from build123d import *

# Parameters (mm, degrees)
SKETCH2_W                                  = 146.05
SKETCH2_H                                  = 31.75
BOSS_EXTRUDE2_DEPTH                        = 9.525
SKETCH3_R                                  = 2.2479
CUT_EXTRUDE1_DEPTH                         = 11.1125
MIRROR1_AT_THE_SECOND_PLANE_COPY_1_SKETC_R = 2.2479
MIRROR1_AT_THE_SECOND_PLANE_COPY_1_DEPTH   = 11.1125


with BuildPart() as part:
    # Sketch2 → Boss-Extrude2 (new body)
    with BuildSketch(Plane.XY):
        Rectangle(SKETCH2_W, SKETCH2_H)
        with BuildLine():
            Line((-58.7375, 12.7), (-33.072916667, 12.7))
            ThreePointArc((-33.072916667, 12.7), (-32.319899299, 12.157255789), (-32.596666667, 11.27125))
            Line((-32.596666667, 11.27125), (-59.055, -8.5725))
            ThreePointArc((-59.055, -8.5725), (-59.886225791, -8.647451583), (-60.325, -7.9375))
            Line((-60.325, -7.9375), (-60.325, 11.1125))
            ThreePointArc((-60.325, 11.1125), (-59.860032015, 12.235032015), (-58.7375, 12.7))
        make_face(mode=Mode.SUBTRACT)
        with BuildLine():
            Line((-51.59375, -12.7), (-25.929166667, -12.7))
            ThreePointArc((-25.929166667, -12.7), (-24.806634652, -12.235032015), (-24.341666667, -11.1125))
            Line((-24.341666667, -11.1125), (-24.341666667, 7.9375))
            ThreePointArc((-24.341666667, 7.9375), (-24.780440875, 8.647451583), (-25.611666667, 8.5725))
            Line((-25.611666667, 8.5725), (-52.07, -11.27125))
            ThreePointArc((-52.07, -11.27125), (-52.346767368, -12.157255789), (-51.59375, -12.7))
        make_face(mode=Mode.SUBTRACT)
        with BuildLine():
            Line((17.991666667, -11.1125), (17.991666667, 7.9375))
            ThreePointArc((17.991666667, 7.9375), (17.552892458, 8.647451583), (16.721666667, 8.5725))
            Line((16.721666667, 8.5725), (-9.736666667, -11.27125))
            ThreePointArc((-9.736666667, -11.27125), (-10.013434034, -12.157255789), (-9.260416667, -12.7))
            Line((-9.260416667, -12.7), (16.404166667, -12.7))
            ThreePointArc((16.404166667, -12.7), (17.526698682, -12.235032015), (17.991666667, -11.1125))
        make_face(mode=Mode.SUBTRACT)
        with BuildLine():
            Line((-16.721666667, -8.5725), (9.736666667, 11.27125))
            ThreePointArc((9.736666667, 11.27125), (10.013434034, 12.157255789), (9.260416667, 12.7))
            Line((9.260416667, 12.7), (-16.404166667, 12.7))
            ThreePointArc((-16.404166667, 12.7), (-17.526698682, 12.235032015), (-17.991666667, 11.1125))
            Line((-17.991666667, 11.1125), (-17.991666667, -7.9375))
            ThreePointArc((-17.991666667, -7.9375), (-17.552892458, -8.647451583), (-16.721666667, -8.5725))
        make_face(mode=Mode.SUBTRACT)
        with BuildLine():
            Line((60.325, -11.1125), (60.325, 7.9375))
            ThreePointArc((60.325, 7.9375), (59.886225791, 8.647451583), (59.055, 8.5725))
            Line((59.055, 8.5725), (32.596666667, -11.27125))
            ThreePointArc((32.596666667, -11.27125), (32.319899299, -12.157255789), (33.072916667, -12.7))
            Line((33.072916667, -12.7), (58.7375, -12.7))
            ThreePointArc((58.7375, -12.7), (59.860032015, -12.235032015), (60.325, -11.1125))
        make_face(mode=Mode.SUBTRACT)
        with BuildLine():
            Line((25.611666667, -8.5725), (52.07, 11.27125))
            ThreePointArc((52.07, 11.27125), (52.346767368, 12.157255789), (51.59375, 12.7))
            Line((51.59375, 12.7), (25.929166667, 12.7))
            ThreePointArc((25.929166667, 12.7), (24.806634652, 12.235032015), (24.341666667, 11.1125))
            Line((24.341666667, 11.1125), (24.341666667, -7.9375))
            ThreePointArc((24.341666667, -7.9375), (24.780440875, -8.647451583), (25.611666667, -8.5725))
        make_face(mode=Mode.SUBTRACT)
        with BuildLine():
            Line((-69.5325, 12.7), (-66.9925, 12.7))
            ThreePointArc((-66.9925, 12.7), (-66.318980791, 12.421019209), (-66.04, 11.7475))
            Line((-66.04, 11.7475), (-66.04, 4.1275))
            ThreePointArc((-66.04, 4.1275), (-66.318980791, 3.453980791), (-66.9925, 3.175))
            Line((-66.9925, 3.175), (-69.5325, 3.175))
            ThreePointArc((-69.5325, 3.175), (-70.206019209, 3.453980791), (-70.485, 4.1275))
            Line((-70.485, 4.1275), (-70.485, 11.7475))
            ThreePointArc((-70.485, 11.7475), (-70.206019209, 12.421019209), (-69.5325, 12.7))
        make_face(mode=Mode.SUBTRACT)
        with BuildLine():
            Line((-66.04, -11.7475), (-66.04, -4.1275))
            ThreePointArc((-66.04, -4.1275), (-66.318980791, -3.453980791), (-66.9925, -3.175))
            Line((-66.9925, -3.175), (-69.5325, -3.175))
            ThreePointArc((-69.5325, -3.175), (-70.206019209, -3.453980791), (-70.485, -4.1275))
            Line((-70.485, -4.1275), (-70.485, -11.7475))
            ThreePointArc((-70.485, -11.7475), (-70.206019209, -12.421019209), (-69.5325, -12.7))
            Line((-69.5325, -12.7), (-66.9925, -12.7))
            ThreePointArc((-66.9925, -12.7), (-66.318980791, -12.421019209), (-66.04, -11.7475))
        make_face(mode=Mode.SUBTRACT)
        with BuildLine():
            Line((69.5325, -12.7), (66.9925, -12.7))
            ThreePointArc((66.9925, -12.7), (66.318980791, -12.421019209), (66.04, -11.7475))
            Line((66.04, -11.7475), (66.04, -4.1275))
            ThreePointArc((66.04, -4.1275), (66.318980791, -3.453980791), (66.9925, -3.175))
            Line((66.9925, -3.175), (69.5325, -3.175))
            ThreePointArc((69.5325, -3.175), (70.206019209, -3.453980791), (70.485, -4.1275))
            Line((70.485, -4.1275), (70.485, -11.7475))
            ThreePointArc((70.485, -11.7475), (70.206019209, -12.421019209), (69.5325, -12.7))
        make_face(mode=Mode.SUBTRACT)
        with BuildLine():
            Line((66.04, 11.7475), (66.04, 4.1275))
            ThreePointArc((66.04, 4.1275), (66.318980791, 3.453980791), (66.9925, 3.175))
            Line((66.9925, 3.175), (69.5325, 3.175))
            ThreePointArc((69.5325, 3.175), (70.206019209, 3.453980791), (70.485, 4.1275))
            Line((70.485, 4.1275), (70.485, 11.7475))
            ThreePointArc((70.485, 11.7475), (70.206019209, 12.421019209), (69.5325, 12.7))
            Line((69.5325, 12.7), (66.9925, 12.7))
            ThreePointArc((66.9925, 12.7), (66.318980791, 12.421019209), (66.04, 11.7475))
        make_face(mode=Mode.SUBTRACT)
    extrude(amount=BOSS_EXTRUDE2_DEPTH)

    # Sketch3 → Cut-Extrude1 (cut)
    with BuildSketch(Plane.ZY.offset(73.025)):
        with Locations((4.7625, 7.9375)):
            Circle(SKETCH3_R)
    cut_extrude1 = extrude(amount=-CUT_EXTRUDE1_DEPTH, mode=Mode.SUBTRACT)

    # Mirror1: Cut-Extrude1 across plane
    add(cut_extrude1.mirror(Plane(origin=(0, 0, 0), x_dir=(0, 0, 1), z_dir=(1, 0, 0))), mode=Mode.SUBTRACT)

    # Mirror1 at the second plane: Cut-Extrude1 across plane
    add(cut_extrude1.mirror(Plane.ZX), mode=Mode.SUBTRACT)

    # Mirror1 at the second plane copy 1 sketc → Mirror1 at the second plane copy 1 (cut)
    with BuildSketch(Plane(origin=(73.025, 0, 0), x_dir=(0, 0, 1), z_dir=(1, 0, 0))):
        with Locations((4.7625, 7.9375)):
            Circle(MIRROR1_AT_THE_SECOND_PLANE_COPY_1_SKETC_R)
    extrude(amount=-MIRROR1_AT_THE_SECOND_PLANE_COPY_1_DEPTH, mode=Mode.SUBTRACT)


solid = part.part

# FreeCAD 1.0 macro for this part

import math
import FreeCAD as App
import Part
import Sketcher
Q = App.Units.Quantity


def add_polygon(sketch, points):
    """Adds a closed chain of lines whose ends are joined by coincident constraints."""
    first, n = sketch.GeometryCount, len(points)
    for a, b in zip(points, points[1:] + points[:1]):
        sketch.addGeometry(Part.LineSegment(App.Vector(*a, 0), App.Vector(*b, 0)), False)
    for i in range(n):
        sketch.addConstraint(Sketcher.Constraint("Coincident", first + i, 2, first + (i + 1) % n, 1))

doc = App.newDocument("Part")
body = doc.addObject("PartDesign::Body", "Body")

# Sketch on XY plane
sketch1 = body.newObject("Sketcher::SketchObject", "Sketch")
sketch1.AttachmentSupport = (doc.getObject("XY_Plane"), [""])
sketch1.MapMode = "FlatFace"
add_polygon(sketch1, [(-73.025, 15.875), (-73.025, -15.875), (73.025, -15.875), (73.025, 15.875)])  # lines 0-3
sketch1.addGeometry(Part.LineSegment(App.Vector(-66.04, -4.1275, 0), App.Vector(-66.04, -11.7475, 0)), False)  # 4
sketch1.addGeometry(Part.ArcOfCircle(Part.Circle(App.Vector(-66.9925, -11.7475, 0), App.Vector(0, 0, 1), 0.9525), math.radians(-90), math.radians(0)), False)  # 5
sketch1.addGeometry(Part.LineSegment(App.Vector(-66.9925, -12.7, 0), App.Vector(-69.5325, -12.7, 0)), False)  # 6
sketch1.addGeometry(Part.ArcOfCircle(Part.Circle(App.Vector(-69.5325, -11.7475, 0), App.Vector(0, 0, 1), 0.9525), math.radians(180), math.radians(270)), False)  # 7
sketch1.addGeometry(Part.LineSegment(App.Vector(-70.485, -11.7475, 0), App.Vector(-70.485, -4.1275, 0)), False)  # 8
sketch1.addGeometry(Part.ArcOfCircle(Part.Circle(App.Vector(-69.5325, -4.1275, 0), App.Vector(0, 0, 1), 0.9525), math.radians(90), math.radians(180)), False)  # 9
sketch1.addGeometry(Part.LineSegment(App.Vector(-69.5325, -3.175, 0), App.Vector(-66.9925, -3.175, 0)), False)  # 10
sketch1.addGeometry(Part.ArcOfCircle(Part.Circle(App.Vector(-66.9925, -4.1275, 0), App.Vector(0, 0, 1), 0.9525), math.radians(0), math.radians(90)), False)  # 11
sketch1.addGeometry(Part.LineSegment(App.Vector(-25.929167, -12.7, 0), App.Vector(-51.59375, -12.7, 0)), False)  # 12
sketch1.addGeometry(Part.ArcOfCircle(Part.Circle(App.Vector(-51.59375, -11.90625, 0), App.Vector(0, 0, 1), 0.79375), math.radians(126.869898), math.radians(270)), False)  # 13
sketch1.addGeometry(Part.LineSegment(App.Vector(-52.07, -11.27125, 0), App.Vector(-25.611667, 8.5725, 0)), False)  # 14
sketch1.addGeometry(Part.ArcOfCircle(Part.Circle(App.Vector(-25.135417, 7.9375, 0), App.Vector(0, 0, 1), 0.79375), math.radians(0), math.radians(126.869898)), False)  # 15
sketch1.addGeometry(Part.LineSegment(App.Vector(-24.341667, 7.9375, 0), App.Vector(-24.341667, -11.1125, 0)), False)  # 16
sketch1.addGeometry(Part.ArcOfCircle(Part.Circle(App.Vector(-25.929167, -11.1125, 0), App.Vector(0, 0, 1), 1.5875), math.radians(-90), math.radians(0)), False)  # 17
sketch1.addGeometry(Part.ArcOfCircle(Part.Circle(App.Vector(69.5325, -11.7475, 0), App.Vector(0, 0, 1), 0.9525), math.radians(-90), math.radians(0)), False)  # 18
sketch1.addGeometry(Part.LineSegment(App.Vector(69.5325, -12.7, 0), App.Vector(66.9925, -12.7, 0)), False)  # 19
sketch1.addGeometry(Part.ArcOfCircle(Part.Circle(App.Vector(66.9925, -11.7475, 0), App.Vector(0, 0, 1), 0.9525), math.radians(180), math.radians(270)), False)  # 20
sketch1.addGeometry(Part.LineSegment(App.Vector(66.04, -11.7475, 0), App.Vector(66.04, -4.1275, 0)), False)  # 21
sketch1.addGeometry(Part.ArcOfCircle(Part.Circle(App.Vector(66.9925, -4.1275, 0), App.Vector(0, 0, 1), 0.9525), math.radians(90), math.radians(180)), False)  # 22
sketch1.addGeometry(Part.LineSegment(App.Vector(66.9925, -3.175, 0), App.Vector(69.5325, -3.175, 0)), False)  # 23
sketch1.addGeometry(Part.ArcOfCircle(Part.Circle(App.Vector(69.5325, -4.1275, 0), App.Vector(0, 0, 1), 0.9525), math.radians(0), math.radians(90)), False)  # 24
sketch1.addGeometry(Part.LineSegment(App.Vector(70.485, -4.1275, 0), App.Vector(70.485, -11.7475, 0)), False)  # 25
sketch1.addGeometry(Part.LineSegment(App.Vector(17.991667, 7.9375, 0), App.Vector(17.991667, -11.1125, 0)), False)  # 26
sketch1.addGeometry(Part.ArcOfCircle(Part.Circle(App.Vector(16.404167, -11.1125, 0), App.Vector(0, 0, 1), 1.5875), math.radians(-90), math.radians(0)), False)  # 27
sketch1.addGeometry(Part.LineSegment(App.Vector(16.404167, -12.7, 0), App.Vector(-9.260417, -12.7, 0)), False)  # 28
sketch1.addGeometry(Part.ArcOfCircle(Part.Circle(App.Vector(-9.260417, -11.90625, 0), App.Vector(0, 0, 1), 0.79375), math.radians(126.869898), math.radians(270)), False)  # 29
sketch1.addGeometry(Part.LineSegment(App.Vector(-9.736667, -11.27125, 0), App.Vector(16.721667, 8.5725, 0)), False)  # 30
sketch1.addGeometry(Part.ArcOfCircle(Part.Circle(App.Vector(17.197917, 7.9375, 0), App.Vector(0, 0, 1), 0.79375), math.radians(0), math.radians(126.869898)), False)  # 31
sketch1.addGeometry(Part.LineSegment(App.Vector(60.325, 7.9375, 0), App.Vector(60.325, -11.1125, 0)), False)  # 32
sketch1.addGeometry(Part.ArcOfCircle(Part.Circle(App.Vector(58.7375, -11.1125, 0), App.Vector(0, 0, 1), 1.5875), math.radians(-90), math.radians(0)), False)  # 33
sketch1.addGeometry(Part.LineSegment(App.Vector(58.7375, -12.7, 0), App.Vector(33.072917, -12.7, 0)), False)  # 34
sketch1.addGeometry(Part.ArcOfCircle(Part.Circle(App.Vector(33.072917, -11.90625, 0), App.Vector(0, 0, 1), 0.79375), math.radians(126.869898), math.radians(270)), False)  # 35
sketch1.addGeometry(Part.LineSegment(App.Vector(32.596667, -11.27125, 0), App.Vector(59.055, 8.5725, 0)), False)  # 36
sketch1.addGeometry(Part.ArcOfCircle(Part.Circle(App.Vector(59.53125, 7.9375, 0), App.Vector(0, 0, 1), 0.79375), math.radians(0), math.radians(126.869898)), False)  # 37
sketch1.addGeometry(Part.ArcOfCircle(Part.Circle(App.Vector(-58.7375, 11.1125, 0), App.Vector(0, 0, 1), 1.5875), math.radians(90), math.radians(180)), False)  # 38
sketch1.addGeometry(Part.LineSegment(App.Vector(-58.7375, 12.7, 0), App.Vector(-33.072917, 12.7, 0)), False)  # 39
sketch1.addGeometry(Part.ArcOfCircle(Part.Circle(App.Vector(-33.072917, 11.90625, 0), App.Vector(0, 0, 1), 0.79375), math.radians(-53.130102), math.radians(90)), False)  # 40
sketch1.addGeometry(Part.LineSegment(App.Vector(-32.596667, 11.27125, 0), App.Vector(-59.055, -8.5725, 0)), False)  # 41
sketch1.addGeometry(Part.ArcOfCircle(Part.Circle(App.Vector(-59.53125, -7.9375, 0), App.Vector(0, 0, 1), 0.79375), math.radians(180), math.radians(306.869898)), False)  # 42
sketch1.addGeometry(Part.LineSegment(App.Vector(-60.325, -7.9375, 0), App.Vector(-60.325, 11.1125, 0)), False)  # 43
sketch1.addGeometry(Part.LineSegment(App.Vector(9.736667, 11.27125, 0), App.Vector(-16.721667, -8.5725, 0)), False)  # 44
sketch1.addGeometry(Part.ArcOfCircle(Part.Circle(App.Vector(-17.197917, -7.9375, 0), App.Vector(0, 0, 1), 0.79375), math.radians(180), math.radians(306.869898)), False)  # 45
sketch1.addGeometry(Part.LineSegment(App.Vector(-17.991667, -7.9375, 0), App.Vector(-17.991667, 11.1125, 0)), False)  # 46
sketch1.addGeometry(Part.ArcOfCircle(Part.Circle(App.Vector(-16.404167, 11.1125, 0), App.Vector(0, 0, 1), 1.5875), math.radians(90), math.radians(180)), False)  # 47
sketch1.addGeometry(Part.LineSegment(App.Vector(-16.404167, 12.7, 0), App.Vector(9.260417, 12.7, 0)), False)  # 48
sketch1.addGeometry(Part.ArcOfCircle(Part.Circle(App.Vector(9.260417, 11.90625, 0), App.Vector(0, 0, 1), 0.79375), math.radians(-53.130102), math.radians(90)), False)  # 49
sketch1.addGeometry(Part.ArcOfCircle(Part.Circle(App.Vector(-69.5325, 11.7475, 0), App.Vector(0, 0, 1), 0.9525), math.radians(90), math.radians(180)), False)  # 50
sketch1.addGeometry(Part.LineSegment(App.Vector(-69.5325, 12.7, 0), App.Vector(-66.9925, 12.7, 0)), False)  # 51
sketch1.addGeometry(Part.ArcOfCircle(Part.Circle(App.Vector(-66.9925, 11.7475, 0), App.Vector(0, 0, 1), 0.9525), math.radians(0), math.radians(90)), False)  # 52
sketch1.addGeometry(Part.LineSegment(App.Vector(-66.04, 11.7475, 0), App.Vector(-66.04, 4.1275, 0)), False)  # 53
sketch1.addGeometry(Part.ArcOfCircle(Part.Circle(App.Vector(-66.9925, 4.1275, 0), App.Vector(0, 0, 1), 0.9525), math.radians(-90), math.radians(0)), False)  # 54
sketch1.addGeometry(Part.LineSegment(App.Vector(-66.9925, 3.175, 0), App.Vector(-69.5325, 3.175, 0)), False)  # 55
sketch1.addGeometry(Part.ArcOfCircle(Part.Circle(App.Vector(-69.5325, 4.1275, 0), App.Vector(0, 0, 1), 0.9525), math.radians(180), math.radians(270)), False)  # 56
sketch1.addGeometry(Part.LineSegment(App.Vector(-70.485, 4.1275, 0), App.Vector(-70.485, 11.7475, 0)), False)  # 57
sketch1.addGeometry(Part.LineSegment(App.Vector(52.07, 11.27125, 0), App.Vector(25.611667, -8.5725, 0)), False)  # 58
sketch1.addGeometry(Part.ArcOfCircle(Part.Circle(App.Vector(25.135417, -7.9375, 0), App.Vector(0, 0, 1), 0.79375), math.radians(180), math.radians(306.869898)), False)  # 59
sketch1.addGeometry(Part.LineSegment(App.Vector(24.341667, -7.9375, 0), App.Vector(24.341667, 11.1125, 0)), False)  # 60
sketch1.addGeometry(Part.ArcOfCircle(Part.Circle(App.Vector(25.929167, 11.1125, 0), App.Vector(0, 0, 1), 1.5875), math.radians(90), math.radians(180)), False)  # 61
sketch1.addGeometry(Part.LineSegment(App.Vector(25.929167, 12.7, 0), App.Vector(51.59375, 12.7, 0)), False)  # 62
sketch1.addGeometry(Part.ArcOfCircle(Part.Circle(App.Vector(51.59375, 11.90625, 0), App.Vector(0, 0, 1), 0.79375), math.radians(-53.130102), math.radians(90)), False)  # 63
sketch1.addGeometry(Part.LineSegment(App.Vector(66.04, 4.1275, 0), App.Vector(66.04, 11.7475, 0)), False)  # 64
sketch1.addGeometry(Part.ArcOfCircle(Part.Circle(App.Vector(66.9925, 11.7475, 0), App.Vector(0, 0, 1), 0.9525), math.radians(90), math.radians(180)), False)  # 65
sketch1.addGeometry(Part.LineSegment(App.Vector(66.9925, 12.7, 0), App.Vector(69.5325, 12.7, 0)), False)  # 66
sketch1.addGeometry(Part.ArcOfCircle(Part.Circle(App.Vector(69.5325, 11.7475, 0), App.Vector(0, 0, 1), 0.9525), math.radians(0), math.radians(90)), False)  # 67
sketch1.addGeometry(Part.LineSegment(App.Vector(70.485, 11.7475, 0), App.Vector(70.485, 4.1275, 0)), False)  # 68
sketch1.addGeometry(Part.ArcOfCircle(Part.Circle(App.Vector(69.5325, 4.1275, 0), App.Vector(0, 0, 1), 0.9525), math.radians(-90), math.radians(0)), False)  # 69
sketch1.addGeometry(Part.LineSegment(App.Vector(69.5325, 3.175, 0), App.Vector(66.9925, 3.175, 0)), False)  # 70
sketch1.addGeometry(Part.ArcOfCircle(Part.Circle(App.Vector(66.9925, 4.1275, 0), App.Vector(0, 0, 1), 0.9525), math.radians(180), math.radians(270)), False)  # 71
sketch1.addConstraint([
    Sketcher.Constraint("Tangent", 4, 2, 5, 2),
    Sketcher.Constraint("Tangent", 5, 1, 6, 1),
    Sketcher.Constraint("Tangent", 6, 2, 7, 2),
    Sketcher.Constraint("Tangent", 7, 1, 8, 1),
    Sketcher.Constraint("Tangent", 8, 2, 9, 2),
    Sketcher.Constraint("Tangent", 9, 1, 10, 1),
    Sketcher.Constraint("Tangent", 10, 2, 11, 2),
    Sketcher.Constraint("Tangent", 11, 1, 4, 1),
    Sketcher.Constraint("Tangent", 12, 2, 13, 2),
    Sketcher.Constraint("Tangent", 13, 1, 14, 1),
    Sketcher.Constraint("Tangent", 14, 2, 15, 2),
    Sketcher.Constraint("Tangent", 15, 1, 16, 1),
    Sketcher.Constraint("Tangent", 16, 2, 17, 2),
    Sketcher.Constraint("Tangent", 17, 1, 12, 1),
    Sketcher.Constraint("Tangent", 18, 1, 19, 1),
    Sketcher.Constraint("Tangent", 19, 2, 20, 2),
    Sketcher.Constraint("Tangent", 20, 1, 21, 1),
    Sketcher.Constraint("Tangent", 21, 2, 22, 2),
    Sketcher.Constraint("Tangent", 22, 1, 23, 1),
    Sketcher.Constraint("Tangent", 23, 2, 24, 2),
    Sketcher.Constraint("Tangent", 24, 1, 25, 1),
    Sketcher.Constraint("Tangent", 25, 2, 18, 2),
    Sketcher.Constraint("Tangent", 26, 2, 27, 2),
    Sketcher.Constraint("Tangent", 27, 1, 28, 1),
    Sketcher.Constraint("Tangent", 28, 2, 29, 2),
    Sketcher.Constraint("Tangent", 29, 1, 30, 1),
    Sketcher.Constraint("Tangent", 30, 2, 31, 2),
    Sketcher.Constraint("Tangent", 31, 1, 26, 1),
    Sketcher.Constraint("Tangent", 32, 2, 33, 2),
    Sketcher.Constraint("Tangent", 33, 1, 34, 1),
    Sketcher.Constraint("Tangent", 34, 2, 35, 2),
    Sketcher.Constraint("Tangent", 35, 1, 36, 1),
    Sketcher.Constraint("Tangent", 36, 2, 37, 2),
    Sketcher.Constraint("Tangent", 37, 1, 32, 1),
    Sketcher.Constraint("Tangent", 38, 1, 39, 1),
    Sketcher.Constraint("Tangent", 39, 2, 40, 2),
    Sketcher.Constraint("Tangent", 40, 1, 41, 1),
    Sketcher.Constraint("Tangent", 41, 2, 42, 2),
    Sketcher.Constraint("Tangent", 42, 1, 43, 1),
    Sketcher.Constraint("Tangent", 43, 2, 38, 2),
    Sketcher.Constraint("Tangent", 44, 2, 45, 2),
    Sketcher.Constraint("Tangent", 45, 1, 46, 1),
    Sketcher.Constraint("Tangent", 46, 2, 47, 2),
    Sketcher.Constraint("Tangent", 47, 1, 48, 1),
    Sketcher.Constraint("Tangent", 48, 2, 49, 2),
    Sketcher.Constraint("Tangent", 49, 1, 44, 1),
    Sketcher.Constraint("Tangent", 50, 1, 51, 1),
    Sketcher.Constraint("Tangent", 51, 2, 52, 2),
    Sketcher.Constraint("Tangent", 52, 1, 53, 1),
    Sketcher.Constraint("Tangent", 53, 2, 54, 2),
    Sketcher.Constraint("Tangent", 54, 1, 55, 1),
    Sketcher.Constraint("Tangent", 55, 2, 56, 2),
    Sketcher.Constraint("Tangent", 56, 1, 57, 1),
    Sketcher.Constraint("Tangent", 57, 2, 50, 2),
    Sketcher.Constraint("Tangent", 58, 2, 59, 2),
    Sketcher.Constraint("Tangent", 59, 1, 60, 1),
    Sketcher.Constraint("Tangent", 60, 2, 61, 2),
    Sketcher.Constraint("Tangent", 61, 1, 62, 1),
    Sketcher.Constraint("Tangent", 62, 2, 63, 2),
    Sketcher.Constraint("Tangent", 63, 1, 58, 1),
    Sketcher.Constraint("Tangent", 64, 2, 65, 2),
    Sketcher.Constraint("Tangent", 65, 1, 66, 1),
    Sketcher.Constraint("Tangent", 66, 2, 67, 2),
    Sketcher.Constraint("Tangent", 67, 1, 68, 1),
    Sketcher.Constraint("Tangent", 68, 2, 69, 2),
    Sketcher.Constraint("Tangent", 69, 1, 70, 1),
    Sketcher.Constraint("Tangent", 70, 2, 71, 2),
    Sketcher.Constraint("Tangent", 71, 1, 64, 1),
    Sketcher.Constraint("Vertical", 0),
    Sketcher.Constraint("Horizontal", 1),
    Sketcher.Constraint("Vertical", 2),
    Sketcher.Constraint("Horizontal", 3),
    Sketcher.Constraint("Vertical", 4),
    Sketcher.Constraint("Horizontal", 6),
    Sketcher.Constraint("Vertical", 8),
    Sketcher.Constraint("Horizontal", 10),
    Sketcher.Constraint("Horizontal", 12),
    Sketcher.Constraint("Vertical", 16),
    Sketcher.Constraint("Horizontal", 19),
    Sketcher.Constraint("Vertical", 21),
    Sketcher.Constraint("Horizontal", 23),
    Sketcher.Constraint("Vertical", 25),
    Sketcher.Constraint("Vertical", 26),
    Sketcher.Constraint("Horizontal", 28),
    Sketcher.Constraint("Vertical", 32),
    Sketcher.Constraint("Horizontal", 34),
    Sketcher.Constraint("Horizontal", 39),
    Sketcher.Constraint("Vertical", 43),
    Sketcher.Constraint("Vertical", 46),
    Sketcher.Constraint("Horizontal", 48),
    Sketcher.Constraint("Horizontal", 51),
    Sketcher.Constraint("Vertical", 53),
    Sketcher.Constraint("Horizontal", 55),
    Sketcher.Constraint("Vertical", 57),
    Sketcher.Constraint("Vertical", 60),
    Sketcher.Constraint("Horizontal", 62),
    Sketcher.Constraint("Vertical", 64),
    Sketcher.Constraint("Horizontal", 66),
    Sketcher.Constraint("Vertical", 68),
    Sketcher.Constraint("Horizontal", 70),
    Sketcher.Constraint("Equal", 5, 7),
    Sketcher.Constraint("Equal", 7, 9),
    Sketcher.Constraint("Equal", 9, 11),
    Sketcher.Constraint("Equal", 13, 15),
    Sketcher.Constraint("Equal", 11, 18),
    Sketcher.Constraint("Equal", 18, 20),
    Sketcher.Constraint("Equal", 20, 22),
    Sketcher.Constraint("Equal", 22, 24),
    Sketcher.Constraint("Equal", 17, 27),
    Sketcher.Constraint("Equal", 15, 29),
    Sketcher.Constraint("Equal", 29, 31),
    Sketcher.Constraint("Equal", 27, 33),
    Sketcher.Constraint("Equal", 31, 35),
    Sketcher.Constraint("Equal", 35, 37),
    Sketcher.Constraint("Equal", 33, 38),
    Sketcher.Constraint("Equal", 37, 40),
    Sketcher.Constraint("Equal", 40, 42),
    Sketcher.Constraint("Equal", 42, 45),
    Sketcher.Constraint("Equal", 38, 47),
    Sketcher.Constraint("Equal", 45, 49),
    Sketcher.Constraint("Equal", 24, 50),
    Sketcher.Constraint("Equal", 50, 52),
    Sketcher.Constraint("Equal", 52, 54),
    Sketcher.Constraint("Equal", 54, 56),
    Sketcher.Constraint("Equal", 49, 59),
    Sketcher.Constraint("Equal", 47, 61),
    Sketcher.Constraint("Equal", 59, 63),
    Sketcher.Constraint("Equal", 56, 65),
    Sketcher.Constraint("Equal", 65, 67),
    Sketcher.Constraint("Equal", 67, 69),
    Sketcher.Constraint("Equal", 69, 71),
    Sketcher.Constraint("Symmetric", 33, 3, 38, 3, -1, 1),
    Sketcher.Constraint("Symmetric", 31, 3, 45, 3, -1, 1),
    Sketcher.Constraint("Symmetric", 29, 3, 49, 3, -1, 1),
    Sketcher.Constraint("Symmetric", 18, 3, 50, 3, -1, 1),
    Sketcher.Constraint("Symmetric", 22, 3, 54, 3, -1, 1),
    Sketcher.Constraint("Symmetric", 15, 3, 59, 3, -1, 1),
    Sketcher.Constraint("Symmetric", 13, 3, 63, 3, -1, 1),
    Sketcher.Constraint("Symmetric", 5, 3, 65, 3, -1, 1),
    Sketcher.Constraint("Symmetric", 9, 3, 69, 3, -1, 1),
    Sketcher.Constraint("Symmetric", 0, 2, 2, 2, -1, 1),
    Sketcher.Constraint("Symmetric", 35, 1, 40, 1, -1, 1),
    Sketcher.Constraint("Symmetric", 7, 3, 18, 3, -2),
    Sketcher.Constraint("Symmetric", 11, 3, 22, 3, -2),
    Sketcher.Constraint("Parallel", 14, 30),
    Sketcher.Constraint("Parallel", 30, 36),
    Sketcher.Constraint("Horizontal", 17, 3, 27, 3),
    Sketcher.Constraint("Horizontal", 15, 3, 31, 3),
    Sketcher.Constraint("Horizontal", 27, 3, 33, 3),
    Sketcher.Constraint("Horizontal", 31, 3, 37, 3),
    Sketcher.Constraint("Horizontal", 6, 2, 12, 2),
    Sketcher.Constraint("DistanceX", 6, 2, 6, 1, Q("0.1 in")),
    Sketcher.Constraint("DistanceY", 4, 2, 4, 1, Q("0.3 in")),
    Sketcher.Constraint("Radius", 13, Q("0.03125 in")),
    Sketcher.Constraint("Radius", 17, Q("0.0625 in")),
    Sketcher.Constraint("DistanceX", 1, 1, 1, 2, Q("5.75 in")),
    Sketcher.Constraint("DistanceY", 0, 2, 0, 1, Q("1.25 in")),
    Sketcher.Constraint("DistanceY", 16, 2, 16, 1, Q("0.75 in")),
    Sketcher.Constraint("DistanceX", 4, 2, -1, 1, Q("2.6 in")),
    Sketcher.Constraint("DistanceY", 5, 1, -1, 1, Q("0.5 in")),
    Sketcher.Constraint("Radius", 5, Q("0.0375 in")),
    Sketcher.Constraint("DistanceX", 13, 1, -1, 1, Q("2.05 in")),
    Sketcher.Constraint("DistanceX", 13, 3, -1, 1, Q("2.03125 in")),
    Sketcher.Constraint("DistanceX", -1, 1, 33, 3, Q("2.3125 in")),
    Sketcher.Constraint("DistanceX", -1, 1, 27, 3, Q("16.404167 mm")),
])
pad1 = body.newObject("PartDesign::Pad", "Pad")
pad1.Profile = sketch1
pad1.Length = Q("0.375 in")

# Sketch on YZ plane
sketch2 = body.newObject("Sketcher::SketchObject", "Sketch001")
sketch2.AttachmentSupport = (doc.getObject("YZ_Plane"), [""])
sketch2.MapMode = "FlatFace"
sketch2.AttachmentOffset = App.Placement(App.Vector(0, 0, -2.875 * 25.4), App.Rotation())
sketch2.addGeometry(Part.Circle(App.Vector(7.9375, 4.7625, 0), App.Vector(0, 0, 1), 2.2479), False)
sketch2.addConstraint([
    Sketcher.Constraint("Diameter", 0, Q("0.177 in")),
    Sketcher.Constraint("DistanceX", -1, 1, 0, 3, Q("0.3125 in")),
    Sketcher.Constraint("DistanceY", -1, 1, 0, 3, Q("0.1875 in")),
])
pocket1 = body.newObject("PartDesign::Pocket", "Pocket")
pocket1.Profile = sketch2
pocket1.Length = Q("0.4375 in")
pocket1.Reversed = True
doc.recompute()

mirrored = body.newObject("PartDesign::Mirrored", "Mirrored")
mirrored.Originals = [pocket1]
mirrored.MirrorPlane = (doc.getObject("YZ_Plane"), [""])
body.Tip = mirrored
doc.recompute()

mirrored2 = body.newObject("PartDesign::Mirrored", "Mirrored001")
mirrored2.Originals = [pocket1]
mirrored2.MirrorPlane = (doc.getObject("XZ_Plane"), [""])
body.Tip = mirrored2

# Sketch on YZ plane
sketch3 = body.newObject("Sketcher::SketchObject", "Sketch002")
sketch3.AttachmentSupport = (doc.getObject("YZ_Plane"), [""])
sketch3.MapMode = "FlatFace"
sketch3.AttachmentOffset = App.Placement(App.Vector(0, 0, 2.875 * 25.4), App.Rotation())
sketch3.addGeometry(Part.Circle(App.Vector(-7.9375, 4.7625, 0), App.Vector(0, 0, 1), 2.2479), False)
sketch3.addConstraint([
    Sketcher.Constraint("Diameter", 0, Q("0.177 in")),
    Sketcher.Constraint("DistanceX", 0, 3, -1, 1, Q("0.3125 in")),
    Sketcher.Constraint("DistanceY", -1, 1, 0, 3, Q("0.1875 in")),
])
pocket2 = body.newObject("PartDesign::Pocket", "Pocket001")
pocket2.Profile = sketch3
pocket2.Length = Q("0.4375 in")

doc.recompute()
